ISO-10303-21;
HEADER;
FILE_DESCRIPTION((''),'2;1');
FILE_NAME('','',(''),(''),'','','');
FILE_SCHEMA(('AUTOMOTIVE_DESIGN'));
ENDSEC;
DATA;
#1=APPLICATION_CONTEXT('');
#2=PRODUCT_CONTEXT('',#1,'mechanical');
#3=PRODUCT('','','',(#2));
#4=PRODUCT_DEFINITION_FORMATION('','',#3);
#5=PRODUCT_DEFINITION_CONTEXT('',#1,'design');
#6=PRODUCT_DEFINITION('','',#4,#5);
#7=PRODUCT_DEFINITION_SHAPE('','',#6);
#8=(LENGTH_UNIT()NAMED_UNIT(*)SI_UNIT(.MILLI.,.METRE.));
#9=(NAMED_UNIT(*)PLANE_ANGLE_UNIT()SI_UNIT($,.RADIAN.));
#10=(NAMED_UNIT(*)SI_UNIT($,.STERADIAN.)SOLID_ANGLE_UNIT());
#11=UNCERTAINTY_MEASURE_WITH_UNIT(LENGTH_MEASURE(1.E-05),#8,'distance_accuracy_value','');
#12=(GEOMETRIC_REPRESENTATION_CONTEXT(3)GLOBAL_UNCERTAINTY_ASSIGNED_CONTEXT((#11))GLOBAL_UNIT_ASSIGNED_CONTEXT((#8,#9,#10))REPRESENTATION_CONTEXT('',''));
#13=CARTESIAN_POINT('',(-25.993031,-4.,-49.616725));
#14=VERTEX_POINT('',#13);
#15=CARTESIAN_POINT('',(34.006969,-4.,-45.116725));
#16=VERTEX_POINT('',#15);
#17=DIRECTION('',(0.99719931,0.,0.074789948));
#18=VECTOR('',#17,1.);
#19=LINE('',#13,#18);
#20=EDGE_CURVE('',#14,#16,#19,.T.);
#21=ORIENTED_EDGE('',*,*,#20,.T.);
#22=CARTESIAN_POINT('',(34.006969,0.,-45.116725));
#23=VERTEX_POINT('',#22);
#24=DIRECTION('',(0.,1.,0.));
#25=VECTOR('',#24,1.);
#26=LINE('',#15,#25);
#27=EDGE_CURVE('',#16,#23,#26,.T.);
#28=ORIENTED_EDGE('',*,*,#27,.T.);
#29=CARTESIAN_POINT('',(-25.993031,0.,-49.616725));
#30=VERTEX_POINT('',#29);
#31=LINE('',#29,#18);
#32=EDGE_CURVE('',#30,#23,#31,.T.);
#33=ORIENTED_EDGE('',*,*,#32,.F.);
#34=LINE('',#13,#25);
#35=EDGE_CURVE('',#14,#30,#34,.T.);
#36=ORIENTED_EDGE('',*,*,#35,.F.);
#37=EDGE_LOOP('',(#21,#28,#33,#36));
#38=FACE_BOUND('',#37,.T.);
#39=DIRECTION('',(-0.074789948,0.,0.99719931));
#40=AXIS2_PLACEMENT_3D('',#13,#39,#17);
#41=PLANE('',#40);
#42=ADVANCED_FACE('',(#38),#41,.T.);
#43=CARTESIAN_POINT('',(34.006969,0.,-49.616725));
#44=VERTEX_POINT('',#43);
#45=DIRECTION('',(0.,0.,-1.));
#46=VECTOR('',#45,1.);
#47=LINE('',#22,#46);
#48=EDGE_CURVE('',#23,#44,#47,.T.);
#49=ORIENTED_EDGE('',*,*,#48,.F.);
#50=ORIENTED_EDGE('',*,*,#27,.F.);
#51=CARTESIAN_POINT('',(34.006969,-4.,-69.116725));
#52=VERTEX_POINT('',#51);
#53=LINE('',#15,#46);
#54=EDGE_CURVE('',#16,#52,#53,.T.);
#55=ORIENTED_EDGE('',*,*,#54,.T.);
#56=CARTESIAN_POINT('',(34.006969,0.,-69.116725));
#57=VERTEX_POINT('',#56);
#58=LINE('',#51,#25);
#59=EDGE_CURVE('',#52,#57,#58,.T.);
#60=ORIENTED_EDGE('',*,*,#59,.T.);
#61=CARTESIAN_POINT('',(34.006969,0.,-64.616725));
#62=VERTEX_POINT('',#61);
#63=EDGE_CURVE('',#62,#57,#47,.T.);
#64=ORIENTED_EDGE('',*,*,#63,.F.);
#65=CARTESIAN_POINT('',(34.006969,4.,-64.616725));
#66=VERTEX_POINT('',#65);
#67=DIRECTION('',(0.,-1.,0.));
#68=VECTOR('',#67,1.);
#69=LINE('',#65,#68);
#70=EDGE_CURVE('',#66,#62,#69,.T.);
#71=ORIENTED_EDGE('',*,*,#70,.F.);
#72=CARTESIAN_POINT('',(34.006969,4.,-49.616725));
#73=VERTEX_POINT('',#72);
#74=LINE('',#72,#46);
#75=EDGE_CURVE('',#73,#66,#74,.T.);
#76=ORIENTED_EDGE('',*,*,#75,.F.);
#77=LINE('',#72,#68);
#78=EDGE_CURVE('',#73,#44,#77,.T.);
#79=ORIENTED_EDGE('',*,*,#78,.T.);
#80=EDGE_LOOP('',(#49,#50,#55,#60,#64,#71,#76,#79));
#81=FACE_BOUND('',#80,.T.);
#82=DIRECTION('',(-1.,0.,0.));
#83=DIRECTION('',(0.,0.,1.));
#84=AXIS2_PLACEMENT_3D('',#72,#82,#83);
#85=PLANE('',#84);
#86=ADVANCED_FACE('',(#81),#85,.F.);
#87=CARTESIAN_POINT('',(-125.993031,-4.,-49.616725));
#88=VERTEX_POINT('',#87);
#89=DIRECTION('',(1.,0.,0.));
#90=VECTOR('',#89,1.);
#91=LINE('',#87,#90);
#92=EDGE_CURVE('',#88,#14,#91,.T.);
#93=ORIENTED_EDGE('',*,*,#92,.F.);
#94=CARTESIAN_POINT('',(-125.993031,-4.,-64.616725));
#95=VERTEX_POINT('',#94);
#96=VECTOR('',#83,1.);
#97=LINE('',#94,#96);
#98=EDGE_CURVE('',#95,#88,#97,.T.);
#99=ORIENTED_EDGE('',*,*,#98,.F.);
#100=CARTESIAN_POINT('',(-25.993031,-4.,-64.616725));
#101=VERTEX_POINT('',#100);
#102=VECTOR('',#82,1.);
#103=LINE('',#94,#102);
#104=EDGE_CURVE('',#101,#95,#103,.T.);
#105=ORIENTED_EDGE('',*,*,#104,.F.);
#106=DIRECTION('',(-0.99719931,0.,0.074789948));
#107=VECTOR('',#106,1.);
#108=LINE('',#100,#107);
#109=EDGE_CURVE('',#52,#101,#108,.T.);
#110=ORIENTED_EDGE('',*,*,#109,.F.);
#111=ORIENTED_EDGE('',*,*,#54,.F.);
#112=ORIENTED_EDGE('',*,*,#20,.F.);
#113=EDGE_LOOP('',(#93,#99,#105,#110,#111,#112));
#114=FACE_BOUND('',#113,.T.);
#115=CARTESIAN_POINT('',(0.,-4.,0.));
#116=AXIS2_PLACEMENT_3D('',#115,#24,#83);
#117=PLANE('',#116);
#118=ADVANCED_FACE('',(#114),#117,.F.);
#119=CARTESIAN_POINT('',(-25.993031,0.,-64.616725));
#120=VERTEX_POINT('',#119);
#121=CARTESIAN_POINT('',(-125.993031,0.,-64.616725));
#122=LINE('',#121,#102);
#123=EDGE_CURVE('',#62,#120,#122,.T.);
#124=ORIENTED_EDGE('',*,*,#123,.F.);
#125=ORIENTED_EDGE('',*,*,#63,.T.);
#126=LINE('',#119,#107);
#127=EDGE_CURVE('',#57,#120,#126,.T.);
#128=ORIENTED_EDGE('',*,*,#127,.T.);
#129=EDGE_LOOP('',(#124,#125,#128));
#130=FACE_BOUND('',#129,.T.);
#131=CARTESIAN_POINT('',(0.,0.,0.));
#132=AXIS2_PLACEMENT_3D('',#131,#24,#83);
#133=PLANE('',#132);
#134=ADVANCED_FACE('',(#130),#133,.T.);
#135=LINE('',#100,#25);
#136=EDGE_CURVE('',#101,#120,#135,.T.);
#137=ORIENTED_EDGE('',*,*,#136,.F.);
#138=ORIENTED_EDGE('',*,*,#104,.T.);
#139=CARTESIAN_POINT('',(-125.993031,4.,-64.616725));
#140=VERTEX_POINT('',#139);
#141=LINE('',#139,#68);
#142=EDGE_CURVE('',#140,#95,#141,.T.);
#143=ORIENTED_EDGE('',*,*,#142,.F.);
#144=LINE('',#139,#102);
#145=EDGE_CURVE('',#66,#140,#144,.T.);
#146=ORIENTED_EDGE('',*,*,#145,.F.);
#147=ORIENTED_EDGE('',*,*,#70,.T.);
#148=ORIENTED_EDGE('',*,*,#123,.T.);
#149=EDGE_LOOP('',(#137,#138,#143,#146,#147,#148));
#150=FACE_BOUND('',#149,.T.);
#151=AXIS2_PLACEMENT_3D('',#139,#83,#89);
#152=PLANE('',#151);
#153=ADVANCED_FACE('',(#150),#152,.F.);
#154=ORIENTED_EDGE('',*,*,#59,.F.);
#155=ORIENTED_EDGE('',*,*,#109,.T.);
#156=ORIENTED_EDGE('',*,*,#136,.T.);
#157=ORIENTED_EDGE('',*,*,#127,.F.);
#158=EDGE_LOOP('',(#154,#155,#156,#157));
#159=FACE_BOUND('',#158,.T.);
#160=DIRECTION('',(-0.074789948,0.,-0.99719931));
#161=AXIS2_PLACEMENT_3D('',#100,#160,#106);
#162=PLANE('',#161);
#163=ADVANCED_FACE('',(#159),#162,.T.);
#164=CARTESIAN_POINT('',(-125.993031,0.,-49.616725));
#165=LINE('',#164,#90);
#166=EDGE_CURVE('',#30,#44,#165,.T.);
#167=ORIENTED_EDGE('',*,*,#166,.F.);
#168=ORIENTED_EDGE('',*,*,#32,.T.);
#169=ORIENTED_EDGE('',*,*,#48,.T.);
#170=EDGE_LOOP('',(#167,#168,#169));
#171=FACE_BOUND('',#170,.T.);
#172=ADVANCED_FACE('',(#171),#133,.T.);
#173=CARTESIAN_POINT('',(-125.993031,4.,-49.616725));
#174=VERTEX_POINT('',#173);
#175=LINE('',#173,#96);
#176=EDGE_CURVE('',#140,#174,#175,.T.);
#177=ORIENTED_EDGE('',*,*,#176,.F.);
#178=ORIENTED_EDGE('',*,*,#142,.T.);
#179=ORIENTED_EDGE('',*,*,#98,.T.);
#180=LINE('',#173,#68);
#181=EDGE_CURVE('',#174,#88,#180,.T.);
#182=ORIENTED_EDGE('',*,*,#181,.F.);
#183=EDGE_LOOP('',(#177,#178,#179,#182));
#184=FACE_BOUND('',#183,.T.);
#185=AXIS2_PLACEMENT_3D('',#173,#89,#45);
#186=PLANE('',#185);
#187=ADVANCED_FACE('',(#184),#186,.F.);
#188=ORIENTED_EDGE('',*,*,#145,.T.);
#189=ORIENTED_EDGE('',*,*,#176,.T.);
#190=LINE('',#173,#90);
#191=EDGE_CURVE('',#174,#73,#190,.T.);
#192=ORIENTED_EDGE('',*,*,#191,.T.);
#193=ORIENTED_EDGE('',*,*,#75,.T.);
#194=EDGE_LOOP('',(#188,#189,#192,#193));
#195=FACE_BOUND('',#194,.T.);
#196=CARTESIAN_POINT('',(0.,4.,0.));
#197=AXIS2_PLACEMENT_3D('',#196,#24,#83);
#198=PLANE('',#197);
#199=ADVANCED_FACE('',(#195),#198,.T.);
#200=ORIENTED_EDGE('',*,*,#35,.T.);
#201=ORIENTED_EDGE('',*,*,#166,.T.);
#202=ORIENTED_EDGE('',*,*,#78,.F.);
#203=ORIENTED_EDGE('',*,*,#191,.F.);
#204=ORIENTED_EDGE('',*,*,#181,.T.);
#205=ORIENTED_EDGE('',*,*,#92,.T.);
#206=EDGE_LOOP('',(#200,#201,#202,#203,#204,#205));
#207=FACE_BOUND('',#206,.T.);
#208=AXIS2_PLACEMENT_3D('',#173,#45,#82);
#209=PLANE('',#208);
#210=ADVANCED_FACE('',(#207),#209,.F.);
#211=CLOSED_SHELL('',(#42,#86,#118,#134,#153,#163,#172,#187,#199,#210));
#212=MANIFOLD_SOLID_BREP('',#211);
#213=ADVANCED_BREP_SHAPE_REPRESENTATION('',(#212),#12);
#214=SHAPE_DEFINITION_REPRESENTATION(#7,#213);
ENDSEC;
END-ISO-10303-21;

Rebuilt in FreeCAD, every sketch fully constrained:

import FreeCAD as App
import Part
import Sketcher
from FreeCAD import Vector
Q = App.Units.Quantity

doc = App.newDocument("Part")
body = doc.addObject("PartDesign::Body", "Body")

# Sketch on XZ plane
sketch1 = doc.addObject("Sketcher::SketchObject", "Sketch")
body.addObject(sketch1)
sketch1.AttachmentSupport = (doc.XZ_Plane, [""])
sketch1.MapMode = "FlatFace"
sketch1.addGeometry([
    Part.LineSegment(Vector(-126, -65, 0), Vector(-126, -50, 0)),
    Part.LineSegment(Vector(-126, -50, 0), Vector(34, -50, 0)),
    Part.LineSegment(Vector(34, -50, 0), Vector(34, -65, 0)),
    Part.LineSegment(Vector(34, -65, 0), Vector(-126, -65, 0)),
], False)
sketch1.addConstraint([
    Sketcher.Constraint("Coincident", 0, 2, 1, 1),
    Sketcher.Constraint("Coincident", 1, 2, 2, 1),
    Sketcher.Constraint("Coincident", 2, 2, 3, 1),
    Sketcher.Constraint("Coincident", 3, 2, 0, 1),
    Sketcher.Constraint("Vertical", 0),
    Sketcher.Constraint("Horizontal", 1),
    Sketcher.Constraint("Vertical", 2),
    Sketcher.Constraint("Horizontal", 3),
    Sketcher.Constraint("DistanceX", 1, 1, 1, 2, Q("160 mm")),
    Sketcher.Constraint("DistanceY", 0, 1, 0, 2, Q("15 mm")),
    Sketcher.Constraint("DistanceX", 0, 2, -1, 1, Q("125.993031 mm")),
    Sketcher.Constraint("DistanceY", 0, 2, -1, 1, Q("49.616725 mm")),
])
pad1 = doc.addObject("PartDesign::Pad", "Pad")
body.addObject(pad1)
pad1.Profile = sketch1
pad1.Length = 4
pad1.Reversed = True

# Sketch on XZ plane
sketch2 = doc.addObject("Sketcher::SketchObject", "Sketch001")
body.addObject(sketch2)
sketch2.AttachmentSupport = (doc.XZ_Plane, [""])
sketch2.MapMode = "FlatFace"
sketch2.addGeometry([
    Part.LineSegment(Vector(-26, -65, 0), Vector(-126, -65, 0)),  # 0
    Part.LineSegment(Vector(-126, -65, 0), Vector(-126, -50, 0)),  # 1
    Part.LineSegment(Vector(-126, -50, 0), Vector(-26, -50, 0)),  # 2
    Part.LineSegment(Vector(-26, -50, 0), Vector(34, -45, 0)),  # 3
    Part.LineSegment(Vector(34, -45, 0), Vector(34, -69, 0)),  # 4
    Part.LineSegment(Vector(34, -69, 0), Vector(-26, -65, 0)),  # 5
], False)
sketch2.addConstraint([
    Sketcher.Constraint("Coincident", 0, 2, 1, 1),
    Sketcher.Constraint("Coincident", 1, 2, 2, 1),
    Sketcher.Constraint("Coincident", 2, 2, 3, 1),
    Sketcher.Constraint("Coincident", 3, 2, 4, 1),
    Sketcher.Constraint("Coincident", 4, 2, 5, 1),
    Sketcher.Constraint("Coincident", 5, 2, 0, 1),
    Sketcher.Constraint("Horizontal", 0),
    Sketcher.Constraint("Vertical", 1),
    Sketcher.Constraint("Horizontal", 2),
    Sketcher.Constraint("Vertical", 4),
    Sketcher.Constraint("Vertical", 2, 2, 5, 2),
    Sketcher.Constraint("Equal", 3, 5),
    Sketcher.Constraint("DistanceX", 0, 2, 0, 1, Q("100 mm")),
    Sketcher.Constraint("DistanceY", 1, 1, 1, 2, Q("15 mm")),
    Sketcher.Constraint("DistanceY", 4, 2, 4, 1, Q("24 mm")),
    Sketcher.Constraint("DistanceX", 2, 2, 3, 2, Q("60 mm")),
    Sketcher.Constraint("DistanceX", 0, 2, -1, 1, Q("125.993031 mm")),
    Sketcher.Constraint("DistanceY", 0, 2, -1, 1, Q("64.616725 mm")),
])
pad2 = doc.addObject("PartDesign::Pad", "Pad001")
body.addObject(pad2)
pad2.Profile = sketch2
pad2.Length = 4

doc.recompute()
